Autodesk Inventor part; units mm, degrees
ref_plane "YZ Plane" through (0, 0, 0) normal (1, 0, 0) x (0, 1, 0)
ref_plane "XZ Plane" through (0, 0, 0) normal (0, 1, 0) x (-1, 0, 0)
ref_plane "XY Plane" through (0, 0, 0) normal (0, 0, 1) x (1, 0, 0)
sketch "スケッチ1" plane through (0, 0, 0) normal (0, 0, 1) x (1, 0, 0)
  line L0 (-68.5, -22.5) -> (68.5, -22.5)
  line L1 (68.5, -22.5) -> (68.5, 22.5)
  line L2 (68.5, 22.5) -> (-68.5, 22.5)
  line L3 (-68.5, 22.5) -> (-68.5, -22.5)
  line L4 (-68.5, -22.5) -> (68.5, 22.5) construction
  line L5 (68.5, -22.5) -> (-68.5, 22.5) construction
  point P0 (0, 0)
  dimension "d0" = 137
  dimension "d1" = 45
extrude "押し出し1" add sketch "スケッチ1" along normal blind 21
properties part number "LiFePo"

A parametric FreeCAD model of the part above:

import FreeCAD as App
import Part
import Sketcher
from FreeCAD import Vector
Q = App.Units.Quantity


def add_polygon(sketch, points):
    """Adds a closed chain of lines whose ends are joined by coincident constraints."""
    first, n = sketch.GeometryCount, len(points)
    for a, b in zip(points, points[1:] + points[:1]):
        sketch.addGeometry(Part.LineSegment(App.Vector(*a, 0), App.Vector(*b, 0)), False)
    for i in range(n):
        sketch.addConstraint(Sketcher.Constraint("Coincident", first + i, 2, first + (i + 1) % n, 1))

doc = App.newDocument("Part")
params = doc.addObject("Spreadsheet::Sheet", "Params")
for row, (alias, value) in enumerate([
    ("sketch1_width", "137 mm"),
    ("sketch1_height", "45 mm"),
    ("pad1_length", "21 mm"),
], start=1):
    params.set(f"A{row}", alias)
    params.set(f"B{row}", "=" + value)
    params.setAlias(f"B{row}", alias)

body = doc.addObject("PartDesign::Body", "Body")

# Sketch on XY plane
sketch1 = body.newObject("Sketcher::SketchObject", "Sketch")
sketch1.AttachmentSupport = (doc.getObject("XY_Plane"), [""])
sketch1.MapMode = "FlatFace"
add_polygon(sketch1, [(-68, 22), (-68, -22), (68, -22), (68, 22)])  # lines 0-3
sketch1.addConstraint([
    Sketcher.Constraint("Vertical", 0),
    Sketcher.Constraint("Horizontal", 1),
    Sketcher.Constraint("Vertical", 2),
    Sketcher.Constraint("Horizontal", 3),
    Sketcher.Constraint("Symmetric", 0, 2, 2, 2, -1, 1),
    Sketcher.Constraint("DistanceX", 1, 1, 1, 2, Q("137 mm")),
    Sketcher.Constraint("DistanceY", 0, 2, 0, 1, Q("45 mm")),
])
sketch1.setExpression("Constraints[9]", "Params.sketch1_width")
sketch1.setExpression("Constraints[10]", "Params.sketch1_height")
pad1 = body.newObject("PartDesign::Pad", "Pad")
pad1.Profile = sketch1
pad1.setExpression("Length", "Params.pad1_length")

doc.recompute()
